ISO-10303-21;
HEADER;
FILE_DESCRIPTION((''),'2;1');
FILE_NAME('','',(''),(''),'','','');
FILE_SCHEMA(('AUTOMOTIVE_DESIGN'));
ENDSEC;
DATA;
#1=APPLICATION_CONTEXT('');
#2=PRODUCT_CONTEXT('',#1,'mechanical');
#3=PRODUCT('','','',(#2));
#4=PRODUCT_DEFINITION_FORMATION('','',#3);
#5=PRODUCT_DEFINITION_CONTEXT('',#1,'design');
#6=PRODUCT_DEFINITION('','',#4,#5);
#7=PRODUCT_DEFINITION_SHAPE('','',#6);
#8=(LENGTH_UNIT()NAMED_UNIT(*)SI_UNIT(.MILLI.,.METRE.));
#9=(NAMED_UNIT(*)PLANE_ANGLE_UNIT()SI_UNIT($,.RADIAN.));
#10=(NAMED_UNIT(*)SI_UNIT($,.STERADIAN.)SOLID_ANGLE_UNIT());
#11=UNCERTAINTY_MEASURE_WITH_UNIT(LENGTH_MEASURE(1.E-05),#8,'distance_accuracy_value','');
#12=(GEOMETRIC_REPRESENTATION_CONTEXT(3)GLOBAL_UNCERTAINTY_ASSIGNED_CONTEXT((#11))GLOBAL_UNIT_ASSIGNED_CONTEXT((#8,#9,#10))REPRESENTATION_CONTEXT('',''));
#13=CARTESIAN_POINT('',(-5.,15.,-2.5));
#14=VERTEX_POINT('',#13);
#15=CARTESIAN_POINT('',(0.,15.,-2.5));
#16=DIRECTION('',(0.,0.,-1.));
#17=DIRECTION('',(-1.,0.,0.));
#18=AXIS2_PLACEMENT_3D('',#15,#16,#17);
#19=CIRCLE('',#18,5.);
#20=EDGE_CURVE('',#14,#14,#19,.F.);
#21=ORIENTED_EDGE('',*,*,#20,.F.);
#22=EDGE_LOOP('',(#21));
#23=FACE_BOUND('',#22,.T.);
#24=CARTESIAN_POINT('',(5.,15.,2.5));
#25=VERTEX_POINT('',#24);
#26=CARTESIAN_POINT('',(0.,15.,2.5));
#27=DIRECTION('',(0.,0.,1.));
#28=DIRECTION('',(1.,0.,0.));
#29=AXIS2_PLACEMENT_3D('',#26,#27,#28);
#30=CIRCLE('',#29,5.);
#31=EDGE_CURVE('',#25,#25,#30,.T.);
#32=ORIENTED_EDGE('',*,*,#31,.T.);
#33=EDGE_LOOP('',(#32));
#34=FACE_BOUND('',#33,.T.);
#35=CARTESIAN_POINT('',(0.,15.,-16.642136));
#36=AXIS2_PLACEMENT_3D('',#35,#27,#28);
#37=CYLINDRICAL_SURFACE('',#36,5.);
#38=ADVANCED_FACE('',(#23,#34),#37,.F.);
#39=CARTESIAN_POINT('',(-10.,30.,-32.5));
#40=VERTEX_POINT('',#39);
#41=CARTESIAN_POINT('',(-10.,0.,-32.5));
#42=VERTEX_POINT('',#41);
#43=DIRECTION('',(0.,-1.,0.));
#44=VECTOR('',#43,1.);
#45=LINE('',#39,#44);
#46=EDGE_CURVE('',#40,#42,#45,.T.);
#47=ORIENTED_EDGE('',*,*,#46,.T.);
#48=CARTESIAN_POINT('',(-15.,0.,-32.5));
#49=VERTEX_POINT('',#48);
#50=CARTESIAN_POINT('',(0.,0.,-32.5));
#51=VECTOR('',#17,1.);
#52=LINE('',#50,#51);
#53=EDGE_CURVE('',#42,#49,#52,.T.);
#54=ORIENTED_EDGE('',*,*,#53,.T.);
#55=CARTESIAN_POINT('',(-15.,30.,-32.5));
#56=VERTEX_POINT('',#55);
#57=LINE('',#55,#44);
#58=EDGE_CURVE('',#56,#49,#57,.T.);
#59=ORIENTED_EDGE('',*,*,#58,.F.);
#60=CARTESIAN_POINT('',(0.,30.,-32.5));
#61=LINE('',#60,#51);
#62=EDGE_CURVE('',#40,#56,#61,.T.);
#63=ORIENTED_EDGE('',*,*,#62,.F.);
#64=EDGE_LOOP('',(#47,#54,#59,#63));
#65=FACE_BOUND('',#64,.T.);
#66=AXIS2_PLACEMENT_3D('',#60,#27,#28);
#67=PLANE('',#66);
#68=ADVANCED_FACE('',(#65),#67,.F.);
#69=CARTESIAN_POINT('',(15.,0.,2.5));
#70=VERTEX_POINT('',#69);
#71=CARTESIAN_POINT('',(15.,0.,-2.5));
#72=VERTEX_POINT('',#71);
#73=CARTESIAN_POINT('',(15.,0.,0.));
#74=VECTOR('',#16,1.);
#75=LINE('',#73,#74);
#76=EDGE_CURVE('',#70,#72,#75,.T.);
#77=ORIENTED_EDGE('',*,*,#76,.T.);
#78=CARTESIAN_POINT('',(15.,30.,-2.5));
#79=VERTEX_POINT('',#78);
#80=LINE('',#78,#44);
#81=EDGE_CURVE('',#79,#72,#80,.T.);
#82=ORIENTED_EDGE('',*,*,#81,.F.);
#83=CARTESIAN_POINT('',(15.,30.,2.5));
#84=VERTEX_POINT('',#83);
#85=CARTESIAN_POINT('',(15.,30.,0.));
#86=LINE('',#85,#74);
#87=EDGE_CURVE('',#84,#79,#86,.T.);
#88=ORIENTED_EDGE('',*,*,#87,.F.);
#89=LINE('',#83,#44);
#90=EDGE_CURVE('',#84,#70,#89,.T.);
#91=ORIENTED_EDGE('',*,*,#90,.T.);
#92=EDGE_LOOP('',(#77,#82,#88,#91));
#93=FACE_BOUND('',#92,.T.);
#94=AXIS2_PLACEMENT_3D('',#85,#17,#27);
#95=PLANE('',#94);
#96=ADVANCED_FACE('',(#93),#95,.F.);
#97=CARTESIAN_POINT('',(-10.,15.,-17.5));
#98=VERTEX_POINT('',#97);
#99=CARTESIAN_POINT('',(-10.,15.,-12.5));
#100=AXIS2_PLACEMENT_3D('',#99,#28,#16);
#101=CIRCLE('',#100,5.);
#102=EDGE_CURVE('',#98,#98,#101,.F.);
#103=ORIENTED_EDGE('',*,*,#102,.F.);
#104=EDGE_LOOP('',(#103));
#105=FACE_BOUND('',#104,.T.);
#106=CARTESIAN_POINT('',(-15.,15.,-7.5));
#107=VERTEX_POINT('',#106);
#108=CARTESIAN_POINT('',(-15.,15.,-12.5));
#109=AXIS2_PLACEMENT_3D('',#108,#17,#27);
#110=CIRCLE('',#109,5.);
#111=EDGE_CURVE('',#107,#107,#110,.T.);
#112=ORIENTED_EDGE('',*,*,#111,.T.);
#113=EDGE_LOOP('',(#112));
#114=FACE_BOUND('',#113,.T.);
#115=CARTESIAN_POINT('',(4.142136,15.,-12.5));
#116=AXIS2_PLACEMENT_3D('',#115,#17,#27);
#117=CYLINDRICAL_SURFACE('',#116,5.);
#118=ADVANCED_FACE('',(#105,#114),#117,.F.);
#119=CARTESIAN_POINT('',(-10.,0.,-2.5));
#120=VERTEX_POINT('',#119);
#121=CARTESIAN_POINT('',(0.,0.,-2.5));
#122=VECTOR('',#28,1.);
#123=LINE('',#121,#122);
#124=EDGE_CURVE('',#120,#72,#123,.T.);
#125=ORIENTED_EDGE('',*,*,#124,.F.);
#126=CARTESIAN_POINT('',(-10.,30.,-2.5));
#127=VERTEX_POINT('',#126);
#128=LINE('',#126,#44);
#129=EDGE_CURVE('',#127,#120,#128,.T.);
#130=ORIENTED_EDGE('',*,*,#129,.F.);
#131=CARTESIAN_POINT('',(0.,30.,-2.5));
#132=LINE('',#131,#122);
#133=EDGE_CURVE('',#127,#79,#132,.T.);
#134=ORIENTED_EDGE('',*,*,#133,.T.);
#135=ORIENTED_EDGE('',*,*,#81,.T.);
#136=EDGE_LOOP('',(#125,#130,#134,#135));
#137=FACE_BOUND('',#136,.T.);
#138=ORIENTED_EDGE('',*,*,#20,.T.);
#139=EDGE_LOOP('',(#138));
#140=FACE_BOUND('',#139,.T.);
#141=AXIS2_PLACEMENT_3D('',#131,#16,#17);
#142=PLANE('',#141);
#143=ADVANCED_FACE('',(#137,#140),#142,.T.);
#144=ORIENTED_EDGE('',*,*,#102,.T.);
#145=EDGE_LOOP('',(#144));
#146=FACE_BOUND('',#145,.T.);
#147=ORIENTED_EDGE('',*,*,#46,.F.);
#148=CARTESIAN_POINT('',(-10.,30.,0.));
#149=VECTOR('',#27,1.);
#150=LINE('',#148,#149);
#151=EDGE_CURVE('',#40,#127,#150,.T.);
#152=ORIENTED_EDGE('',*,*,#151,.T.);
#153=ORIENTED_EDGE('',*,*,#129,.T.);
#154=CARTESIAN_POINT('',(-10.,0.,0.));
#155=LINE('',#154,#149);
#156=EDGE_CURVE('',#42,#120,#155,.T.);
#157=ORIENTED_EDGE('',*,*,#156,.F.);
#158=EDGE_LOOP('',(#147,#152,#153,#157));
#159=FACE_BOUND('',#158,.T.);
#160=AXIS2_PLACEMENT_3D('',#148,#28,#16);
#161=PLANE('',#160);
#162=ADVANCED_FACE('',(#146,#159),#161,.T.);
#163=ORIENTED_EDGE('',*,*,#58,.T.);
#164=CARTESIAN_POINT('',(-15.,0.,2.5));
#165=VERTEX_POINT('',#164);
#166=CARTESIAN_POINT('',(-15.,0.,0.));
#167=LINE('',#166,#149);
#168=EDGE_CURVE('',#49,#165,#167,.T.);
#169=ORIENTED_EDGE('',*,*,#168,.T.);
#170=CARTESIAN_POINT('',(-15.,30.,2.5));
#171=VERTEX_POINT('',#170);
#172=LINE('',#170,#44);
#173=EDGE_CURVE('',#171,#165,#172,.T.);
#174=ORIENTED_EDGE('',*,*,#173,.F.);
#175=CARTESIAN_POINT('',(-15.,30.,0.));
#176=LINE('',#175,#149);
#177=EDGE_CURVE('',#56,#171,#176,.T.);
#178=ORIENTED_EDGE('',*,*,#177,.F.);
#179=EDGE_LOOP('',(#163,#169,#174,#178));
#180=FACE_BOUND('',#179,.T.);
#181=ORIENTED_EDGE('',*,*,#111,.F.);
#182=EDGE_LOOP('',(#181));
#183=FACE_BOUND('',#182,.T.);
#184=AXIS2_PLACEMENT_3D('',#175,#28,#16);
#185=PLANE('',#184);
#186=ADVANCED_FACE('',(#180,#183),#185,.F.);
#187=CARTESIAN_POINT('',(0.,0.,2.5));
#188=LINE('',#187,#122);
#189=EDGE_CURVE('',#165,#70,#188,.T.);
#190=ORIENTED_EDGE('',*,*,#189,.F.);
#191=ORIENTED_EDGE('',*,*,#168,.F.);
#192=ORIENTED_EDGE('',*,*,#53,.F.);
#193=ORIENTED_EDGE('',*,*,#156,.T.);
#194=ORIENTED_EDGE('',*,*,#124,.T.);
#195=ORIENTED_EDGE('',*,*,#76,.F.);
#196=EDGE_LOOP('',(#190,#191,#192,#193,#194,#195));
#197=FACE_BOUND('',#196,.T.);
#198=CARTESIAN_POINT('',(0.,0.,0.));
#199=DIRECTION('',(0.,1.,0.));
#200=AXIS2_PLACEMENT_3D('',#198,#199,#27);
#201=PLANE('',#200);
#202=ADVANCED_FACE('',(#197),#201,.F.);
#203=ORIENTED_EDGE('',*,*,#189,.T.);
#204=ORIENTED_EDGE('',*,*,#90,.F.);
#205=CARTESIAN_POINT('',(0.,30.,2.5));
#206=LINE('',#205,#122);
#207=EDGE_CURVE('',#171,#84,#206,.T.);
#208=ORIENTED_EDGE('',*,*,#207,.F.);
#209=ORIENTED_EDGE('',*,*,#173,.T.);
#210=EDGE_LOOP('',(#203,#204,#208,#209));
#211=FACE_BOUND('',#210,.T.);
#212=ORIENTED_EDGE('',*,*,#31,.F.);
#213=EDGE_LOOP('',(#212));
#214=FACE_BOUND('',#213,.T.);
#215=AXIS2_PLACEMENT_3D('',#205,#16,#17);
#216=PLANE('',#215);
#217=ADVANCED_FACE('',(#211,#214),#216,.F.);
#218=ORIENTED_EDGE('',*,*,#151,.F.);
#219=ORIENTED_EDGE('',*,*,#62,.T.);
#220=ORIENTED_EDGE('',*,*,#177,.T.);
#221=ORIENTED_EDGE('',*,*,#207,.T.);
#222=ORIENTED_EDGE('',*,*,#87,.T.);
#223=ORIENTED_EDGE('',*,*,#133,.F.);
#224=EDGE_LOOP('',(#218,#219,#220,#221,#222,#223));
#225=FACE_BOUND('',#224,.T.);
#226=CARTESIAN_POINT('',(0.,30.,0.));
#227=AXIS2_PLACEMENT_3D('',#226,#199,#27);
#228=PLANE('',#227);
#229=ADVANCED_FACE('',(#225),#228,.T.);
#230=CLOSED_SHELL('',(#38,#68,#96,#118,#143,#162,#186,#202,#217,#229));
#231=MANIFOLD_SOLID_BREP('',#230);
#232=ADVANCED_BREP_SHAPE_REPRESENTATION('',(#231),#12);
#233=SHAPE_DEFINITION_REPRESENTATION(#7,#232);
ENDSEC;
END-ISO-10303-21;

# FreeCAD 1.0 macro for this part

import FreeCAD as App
import Part
import Sketcher

V = App.Vector
Q = App.Units.Quantity

doc = App.newDocument("Part")
params = doc.addObject("Spreadsheet::Sheet", "Params")
for row, (alias, value) in enumerate([
    ("sketch1_width", "30 mm"),
    ("sketch1_width2", "25 mm"),
    ("pad1_length", "30 mm"),
    ("sketch2_diameter", "10 mm"),
    ("pocket1_length", "5 mm"),
    ("sketch3_diameter", "10 mm"),
    ("pocket2_length", "5 mm"),
], start=1):
    params.set(f"A{row}", alias)
    params.set(f"B{row}", "=" + value)
    params.setAlias(f"B{row}", alias)

body = doc.addObject("PartDesign::Body", "Body")

# Sketch on XZ plane
sketch1 = doc.addObject("Sketcher::SketchObject", "Sketch")
body.addObject(sketch1)
sketch1.AttachmentSupport = (doc.XZ_Plane, [""])
sketch1.MapMode = "FlatFace"
sketch1.addGeometry(Part.LineSegment(V(-15, -32.5, 0), V(-15, 2.5, 0)), False)
sketch1.addGeometry(Part.LineSegment(V(-15, 2.5, 0), V(15, 2.5, 0)), False)
sketch1.addGeometry(Part.LineSegment(V(15, 2.5, 0), V(15, -2.5, 0)), False)
sketch1.addGeometry(Part.LineSegment(V(15, -2.5, 0), V(-10, -2.5, 0)), False)
sketch1.addGeometry(Part.LineSegment(V(-10, -2.5, 0), V(-10, -32.5, 0)), False)
sketch1.addGeometry(Part.LineSegment(V(-10, -32.5, 0), V(-15, -32.5, 0)), False)
sketch1.addConstraint(Sketcher.Constraint("Coincident", 0, 2, 1, 1))
sketch1.addConstraint(Sketcher.Constraint("Coincident", 1, 2, 2, 1))
sketch1.addConstraint(Sketcher.Constraint("Coincident", 2, 2, 3, 1))
sketch1.addConstraint(Sketcher.Constraint("Coincident", 3, 2, 4, 1))
sketch1.addConstraint(Sketcher.Constraint("Coincident", 4, 2, 5, 1))
sketch1.addConstraint(Sketcher.Constraint("Coincident", 5, 2, 0, 1))
sketch1.addConstraint(Sketcher.Constraint("Vertical", 0))
sketch1.addConstraint(Sketcher.Constraint("Horizontal", 1))
sketch1.addConstraint(Sketcher.Constraint("Vertical", 2))
sketch1.addConstraint(Sketcher.Constraint("Horizontal", 3))
sketch1.addConstraint(Sketcher.Constraint("Vertical", 4))
sketch1.addConstraint(Sketcher.Constraint("Horizontal", 5))
sketch1.addConstraint(Sketcher.Constraint("Symmetric", 0, 2, 2, 2, -1, 1))
sketch1.addConstraint(Sketcher.Constraint("Equal", 5, 2))
sketch1.addConstraint(Sketcher.Constraint("Equal", 1, 4))
sketch1.addConstraint(Sketcher.Constraint("DistanceX", 1, 1, 1, 2, Q("30 mm")))
sketch1.addConstraint(Sketcher.Constraint("DistanceX", 3, 2, 3, 1, Q("25 mm")))
sketch1.setExpression("Constraints[15]", "Params.sketch1_width")
sketch1.setExpression("Constraints[16]", "Params.sketch1_width2")
pad1 = doc.addObject("PartDesign::Pad", "Pad")
body.addObject(pad1)
pad1.Profile = sketch1
pad1.setExpression("Length", "Params.pad1_length")
pad1.Reversed = True

# Sketch on XY plane
sketch2 = doc.addObject("Sketcher::SketchObject", "Sketch001")
body.addObject(sketch2)
sketch2.AttachmentSupport = (doc.XY_Plane, [""])
sketch2.MapMode = "FlatFace"
sketch2.AttachmentOffset = App.Placement(V(0, 0, 2.5), App.Rotation())
sketch2.addGeometry(Part.Circle(V(0, 15, 0), V(0, 0, 1), 5), False)
sketch2.addConstraint(Sketcher.Constraint("PointOnObject", 0, 3, -2))
sketch2.addConstraint(Sketcher.Constraint("Diameter", 0, Q("10 mm")))
sketch2.addConstraint(Sketcher.Constraint("DistanceY", -1, 1, 0, 3, Q("15 mm")))
sketch2.setExpression("Constraints[1]", "Params.sketch2_diameter")
pocket1 = doc.addObject("PartDesign::Pocket", "Pocket")
body.addObject(pocket1)
pocket1.Profile = sketch2
pocket1.setExpression("Length", "Params.pocket1_length")

# Sketch on YZ plane
sketch3 = doc.addObject("Sketcher::SketchObject", "Sketch002")
body.addObject(sketch3)
sketch3.AttachmentSupport = (doc.YZ_Plane, [""])
sketch3.MapMode = "FlatFace"
sketch3.AttachmentOffset = App.Placement(V(0, 0, -15), App.Rotation())
sketch3.addGeometry(Part.Circle(V(15, -12.5, 0), V(0, 0, 1), 5), False)
sketch3.addConstraint(Sketcher.Constraint("Diameter", 0, Q("10 mm")))
sketch3.addConstraint(Sketcher.Constraint("DistanceX", -1, 1, 0, 3, Q("15 mm")))
sketch3.addConstraint(Sketcher.Constraint("DistanceY", 0, 3, -1, 1, Q("12.5 mm")))
sketch3.setExpression("Constraints[0]", "Params.sketch3_diameter")
pocket2 = doc.addObject("PartDesign::Pocket", "Pocket001")
body.addObject(pocket2)
pocket2.Profile = sketch3
pocket2.setExpression("Length", "Params.pocket2_length")
pocket2.Reversed = True

doc.recompute()
